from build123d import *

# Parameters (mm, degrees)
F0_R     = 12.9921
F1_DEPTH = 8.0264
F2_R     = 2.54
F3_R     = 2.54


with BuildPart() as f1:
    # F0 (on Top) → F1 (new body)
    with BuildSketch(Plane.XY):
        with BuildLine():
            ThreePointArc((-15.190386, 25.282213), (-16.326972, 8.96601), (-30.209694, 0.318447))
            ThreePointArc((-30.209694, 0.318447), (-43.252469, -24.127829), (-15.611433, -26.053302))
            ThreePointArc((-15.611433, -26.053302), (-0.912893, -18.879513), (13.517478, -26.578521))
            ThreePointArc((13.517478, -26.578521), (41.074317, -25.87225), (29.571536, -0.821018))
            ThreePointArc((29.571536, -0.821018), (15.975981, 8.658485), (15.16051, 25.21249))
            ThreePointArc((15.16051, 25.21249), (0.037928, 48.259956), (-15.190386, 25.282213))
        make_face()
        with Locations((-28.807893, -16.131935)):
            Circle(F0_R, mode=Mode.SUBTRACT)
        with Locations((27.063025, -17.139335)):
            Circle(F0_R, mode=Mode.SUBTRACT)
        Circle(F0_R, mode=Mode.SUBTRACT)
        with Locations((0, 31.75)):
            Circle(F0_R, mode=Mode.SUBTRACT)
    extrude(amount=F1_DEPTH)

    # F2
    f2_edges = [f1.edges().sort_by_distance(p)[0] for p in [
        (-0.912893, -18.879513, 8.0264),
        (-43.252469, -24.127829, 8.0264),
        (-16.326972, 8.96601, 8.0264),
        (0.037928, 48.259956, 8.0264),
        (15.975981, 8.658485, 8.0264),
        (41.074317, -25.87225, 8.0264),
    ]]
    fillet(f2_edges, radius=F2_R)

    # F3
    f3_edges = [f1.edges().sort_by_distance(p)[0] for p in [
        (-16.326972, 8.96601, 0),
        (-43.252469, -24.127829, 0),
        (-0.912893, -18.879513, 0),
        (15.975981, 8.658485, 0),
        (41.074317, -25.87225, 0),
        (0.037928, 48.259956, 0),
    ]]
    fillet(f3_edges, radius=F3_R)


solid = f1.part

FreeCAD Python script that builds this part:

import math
import FreeCAD as App
import Part
import Sketcher

V = App.Vector
Q = App.Units.Quantity


def edges_at(feature, points):
    """Names of the edges that pass closest to the given points."""
    edges = feature.Shape.Edges
    near = lambda p: min(range(len(edges)), key=lambda i: edges[i].distToShape(Part.Vertex(*p))[0])
    return sorted({f"Edge{near(p) + 1}" for p in points})

doc = App.newDocument("Part")
body = doc.addObject("PartDesign::Body", "Body")

sketch1 = body.newObject("Sketcher::SketchObject", "Sketch")
sketch1.AttachmentSupport = (doc.getObject("XY_Plane"), [""])
sketch1.MapMode = "FlatFace"
sketch1.addGeometry(Part.ArcOfCircle(Part.Circle(V(-32, 18, 0), V(0, 0, 1), 18), math.radians(-85), math.radians(23)), False)
sketch1.addGeometry(Part.ArcOfCircle(Part.Circle(V(-29, -16, 0), V(0, 0, 1), 17), math.radians(95), math.radians(323)), False)
sketch1.addGeometry(Part.ArcOfCircle(Part.Circle(V(-1, -37, 0), V(0, 0, 1), 18), math.radians(35), math.radians(143)), False)
sketch1.addGeometry(Part.ArcOfCircle(Part.Circle(V(27, -17, 0), V(0, 0, 1), 17), math.radians(-145), math.radians(81)), False)
sketch1.addGeometry(Part.ArcOfCircle(Part.Circle(V(32, 18, 0), V(0, 0, 1), 19), math.radians(157), math.radians(261)), False)
sketch1.addGeometry(Part.ArcOfCircle(Part.Circle(V(0, 32, 0), V(0, 0, 1), 17), math.radians(-23), math.radians(203)), False)
sketch1.addGeometry(Part.Circle(V(-29, -16, 0), V(0, 0, 1), 13), False)
sketch1.addGeometry(Part.Circle(V(27, -17, 0), V(0, 0, 1), 13), False)
sketch1.addGeometry(Part.Circle(V(0, 0, 0), V(0, 0, 1), 13), False)
sketch1.addGeometry(Part.Circle(V(0, 32, 0), V(0, 0, 1), 13), False)
sketch1.addConstraint(Sketcher.Constraint("Tangent", 0, 1, 1, 1))
sketch1.addConstraint(Sketcher.Constraint("Tangent", 1, 2, 2, 2))
sketch1.addConstraint(Sketcher.Constraint("Tangent", 2, 1, 3, 1))
sketch1.addConstraint(Sketcher.Constraint("Tangent", 3, 2, 4, 2))
sketch1.addConstraint(Sketcher.Constraint("Tangent", 4, 1, 5, 1))
sketch1.addConstraint(Sketcher.Constraint("Tangent", 5, 2, 0, 2))
sketch1.addConstraint(Sketcher.Constraint("Coincident", 8, 3, -1, 1))
sketch1.addConstraint(Sketcher.Constraint("Coincident", 6, 3, 1, 3))
sketch1.addConstraint(Sketcher.Constraint("Coincident", 7, 3, 3, 3))
sketch1.addConstraint(Sketcher.Constraint("Coincident", 9, 3, 5, 3))
sketch1.addConstraint(Sketcher.Constraint("Equal", 0, 2))
sketch1.addConstraint(Sketcher.Constraint("Equal", 1, 3))
sketch1.addConstraint(Sketcher.Constraint("Equal", 3, 5))
sketch1.addConstraint(Sketcher.Constraint("Equal", 6, 7))
sketch1.addConstraint(Sketcher.Constraint("Equal", 7, 8))
sketch1.addConstraint(Sketcher.Constraint("Equal", 8, 9))
sketch1.addConstraint(Sketcher.Constraint("PointOnObject", 5, 3, -2))
sketch1.addConstraint(Sketcher.Constraint("Radius", 1, Q("0.65 in")))
sketch1.addConstraint(Sketcher.Constraint("Diameter", 6, Q("1.023 in")))
sketch1.addConstraint(Sketcher.Constraint("DistanceY", -1, 1, 5, 3, Q("1.25 in")))
sketch1.addConstraint(Sketcher.Constraint("Radius", 2, Q("17.983628 mm")))
sketch1.addConstraint(Sketcher.Constraint("Radius", 4, Q("18.805411 mm")))
sketch1.addConstraint(Sketcher.Constraint("DistanceX", 2, 3, -1, 1, Q("1.2371 mm")))
sketch1.addConstraint(Sketcher.Constraint("DistanceY", 1, 2, -1, 1, Q("26.053302 mm")))
sketch1.addConstraint(Sketcher.Constraint("DistanceY", 3, 3, 1, 3, Q("1.0074 mm")))
sketch1.addConstraint(Sketcher.Constraint("DistanceX", 0, 1, 1, 3, Q("1.401801 mm")))
pad1 = body.newObject("PartDesign::Pad", "Pad")
pad1.Profile = sketch1
pad1.Length = Q("0.316 in")
doc.recompute()

fillet = body.newObject("PartDesign::Fillet", "Fillet")
fillet.Base = (pad1, edges_at(pad1, [
    (-0.913, -18.88, 8.026),
    (-43.252, -24.128, 8.026),
    (-16.327, 8.966, 8.026),
    (0.038, 48.26, 8.026),
    (15.976, 8.658, 8.026),
    (41.074, -25.872, 8.026),
]))
fillet.Radius = Q("0.1 in")
doc.recompute()

fillet2 = body.newObject("PartDesign::Fillet", "Fillet001")
fillet2.Base = (fillet, edges_at(fillet, [
    (-16.327, 8.966, 0),
    (-43.252, -24.128, 0),
    (-0.913, -18.88, 0),
    (15.976, 8.658, 0),
    (41.074, -25.872, 0),
    (0.038, 48.26, 0),
]))
fillet2.Radius = Q("0.1 in")

doc.recompute()
